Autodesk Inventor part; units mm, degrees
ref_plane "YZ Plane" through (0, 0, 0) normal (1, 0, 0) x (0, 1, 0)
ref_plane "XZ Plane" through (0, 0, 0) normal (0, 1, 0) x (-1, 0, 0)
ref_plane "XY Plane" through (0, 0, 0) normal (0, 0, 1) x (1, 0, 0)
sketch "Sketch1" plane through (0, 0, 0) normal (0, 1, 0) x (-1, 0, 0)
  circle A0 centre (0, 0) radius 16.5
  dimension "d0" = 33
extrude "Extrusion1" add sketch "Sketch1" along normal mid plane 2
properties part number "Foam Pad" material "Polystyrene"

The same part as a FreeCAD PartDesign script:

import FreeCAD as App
import Part
import Sketcher
Q = App.Units.Quantity

doc = App.newDocument("Part")
body = doc.addObject("PartDesign::Body", "Body")

# Sketch on XZ plane
sketch1 = body.newObject("Sketcher::SketchObject", "Sketch")
sketch1.AttachmentSupport = (doc.getObject("XZ_Plane"), [""])
sketch1.MapMode = "FlatFace"
sketch1.addGeometry(Part.Circle(App.Vector(0, 0, 0), App.Vector(0, 0, 1), 16), False)
sketch1.addConstraint([
    Sketcher.Constraint("Coincident", 0, 3, -1, 1),
    Sketcher.Constraint("Diameter", 0, Q("33 mm")),
])
pad1 = body.newObject("PartDesign::Pad", "Pad")
pad1.Profile = sketch1
pad1.Length = 2
pad1.Midplane = True

doc.recompute()
